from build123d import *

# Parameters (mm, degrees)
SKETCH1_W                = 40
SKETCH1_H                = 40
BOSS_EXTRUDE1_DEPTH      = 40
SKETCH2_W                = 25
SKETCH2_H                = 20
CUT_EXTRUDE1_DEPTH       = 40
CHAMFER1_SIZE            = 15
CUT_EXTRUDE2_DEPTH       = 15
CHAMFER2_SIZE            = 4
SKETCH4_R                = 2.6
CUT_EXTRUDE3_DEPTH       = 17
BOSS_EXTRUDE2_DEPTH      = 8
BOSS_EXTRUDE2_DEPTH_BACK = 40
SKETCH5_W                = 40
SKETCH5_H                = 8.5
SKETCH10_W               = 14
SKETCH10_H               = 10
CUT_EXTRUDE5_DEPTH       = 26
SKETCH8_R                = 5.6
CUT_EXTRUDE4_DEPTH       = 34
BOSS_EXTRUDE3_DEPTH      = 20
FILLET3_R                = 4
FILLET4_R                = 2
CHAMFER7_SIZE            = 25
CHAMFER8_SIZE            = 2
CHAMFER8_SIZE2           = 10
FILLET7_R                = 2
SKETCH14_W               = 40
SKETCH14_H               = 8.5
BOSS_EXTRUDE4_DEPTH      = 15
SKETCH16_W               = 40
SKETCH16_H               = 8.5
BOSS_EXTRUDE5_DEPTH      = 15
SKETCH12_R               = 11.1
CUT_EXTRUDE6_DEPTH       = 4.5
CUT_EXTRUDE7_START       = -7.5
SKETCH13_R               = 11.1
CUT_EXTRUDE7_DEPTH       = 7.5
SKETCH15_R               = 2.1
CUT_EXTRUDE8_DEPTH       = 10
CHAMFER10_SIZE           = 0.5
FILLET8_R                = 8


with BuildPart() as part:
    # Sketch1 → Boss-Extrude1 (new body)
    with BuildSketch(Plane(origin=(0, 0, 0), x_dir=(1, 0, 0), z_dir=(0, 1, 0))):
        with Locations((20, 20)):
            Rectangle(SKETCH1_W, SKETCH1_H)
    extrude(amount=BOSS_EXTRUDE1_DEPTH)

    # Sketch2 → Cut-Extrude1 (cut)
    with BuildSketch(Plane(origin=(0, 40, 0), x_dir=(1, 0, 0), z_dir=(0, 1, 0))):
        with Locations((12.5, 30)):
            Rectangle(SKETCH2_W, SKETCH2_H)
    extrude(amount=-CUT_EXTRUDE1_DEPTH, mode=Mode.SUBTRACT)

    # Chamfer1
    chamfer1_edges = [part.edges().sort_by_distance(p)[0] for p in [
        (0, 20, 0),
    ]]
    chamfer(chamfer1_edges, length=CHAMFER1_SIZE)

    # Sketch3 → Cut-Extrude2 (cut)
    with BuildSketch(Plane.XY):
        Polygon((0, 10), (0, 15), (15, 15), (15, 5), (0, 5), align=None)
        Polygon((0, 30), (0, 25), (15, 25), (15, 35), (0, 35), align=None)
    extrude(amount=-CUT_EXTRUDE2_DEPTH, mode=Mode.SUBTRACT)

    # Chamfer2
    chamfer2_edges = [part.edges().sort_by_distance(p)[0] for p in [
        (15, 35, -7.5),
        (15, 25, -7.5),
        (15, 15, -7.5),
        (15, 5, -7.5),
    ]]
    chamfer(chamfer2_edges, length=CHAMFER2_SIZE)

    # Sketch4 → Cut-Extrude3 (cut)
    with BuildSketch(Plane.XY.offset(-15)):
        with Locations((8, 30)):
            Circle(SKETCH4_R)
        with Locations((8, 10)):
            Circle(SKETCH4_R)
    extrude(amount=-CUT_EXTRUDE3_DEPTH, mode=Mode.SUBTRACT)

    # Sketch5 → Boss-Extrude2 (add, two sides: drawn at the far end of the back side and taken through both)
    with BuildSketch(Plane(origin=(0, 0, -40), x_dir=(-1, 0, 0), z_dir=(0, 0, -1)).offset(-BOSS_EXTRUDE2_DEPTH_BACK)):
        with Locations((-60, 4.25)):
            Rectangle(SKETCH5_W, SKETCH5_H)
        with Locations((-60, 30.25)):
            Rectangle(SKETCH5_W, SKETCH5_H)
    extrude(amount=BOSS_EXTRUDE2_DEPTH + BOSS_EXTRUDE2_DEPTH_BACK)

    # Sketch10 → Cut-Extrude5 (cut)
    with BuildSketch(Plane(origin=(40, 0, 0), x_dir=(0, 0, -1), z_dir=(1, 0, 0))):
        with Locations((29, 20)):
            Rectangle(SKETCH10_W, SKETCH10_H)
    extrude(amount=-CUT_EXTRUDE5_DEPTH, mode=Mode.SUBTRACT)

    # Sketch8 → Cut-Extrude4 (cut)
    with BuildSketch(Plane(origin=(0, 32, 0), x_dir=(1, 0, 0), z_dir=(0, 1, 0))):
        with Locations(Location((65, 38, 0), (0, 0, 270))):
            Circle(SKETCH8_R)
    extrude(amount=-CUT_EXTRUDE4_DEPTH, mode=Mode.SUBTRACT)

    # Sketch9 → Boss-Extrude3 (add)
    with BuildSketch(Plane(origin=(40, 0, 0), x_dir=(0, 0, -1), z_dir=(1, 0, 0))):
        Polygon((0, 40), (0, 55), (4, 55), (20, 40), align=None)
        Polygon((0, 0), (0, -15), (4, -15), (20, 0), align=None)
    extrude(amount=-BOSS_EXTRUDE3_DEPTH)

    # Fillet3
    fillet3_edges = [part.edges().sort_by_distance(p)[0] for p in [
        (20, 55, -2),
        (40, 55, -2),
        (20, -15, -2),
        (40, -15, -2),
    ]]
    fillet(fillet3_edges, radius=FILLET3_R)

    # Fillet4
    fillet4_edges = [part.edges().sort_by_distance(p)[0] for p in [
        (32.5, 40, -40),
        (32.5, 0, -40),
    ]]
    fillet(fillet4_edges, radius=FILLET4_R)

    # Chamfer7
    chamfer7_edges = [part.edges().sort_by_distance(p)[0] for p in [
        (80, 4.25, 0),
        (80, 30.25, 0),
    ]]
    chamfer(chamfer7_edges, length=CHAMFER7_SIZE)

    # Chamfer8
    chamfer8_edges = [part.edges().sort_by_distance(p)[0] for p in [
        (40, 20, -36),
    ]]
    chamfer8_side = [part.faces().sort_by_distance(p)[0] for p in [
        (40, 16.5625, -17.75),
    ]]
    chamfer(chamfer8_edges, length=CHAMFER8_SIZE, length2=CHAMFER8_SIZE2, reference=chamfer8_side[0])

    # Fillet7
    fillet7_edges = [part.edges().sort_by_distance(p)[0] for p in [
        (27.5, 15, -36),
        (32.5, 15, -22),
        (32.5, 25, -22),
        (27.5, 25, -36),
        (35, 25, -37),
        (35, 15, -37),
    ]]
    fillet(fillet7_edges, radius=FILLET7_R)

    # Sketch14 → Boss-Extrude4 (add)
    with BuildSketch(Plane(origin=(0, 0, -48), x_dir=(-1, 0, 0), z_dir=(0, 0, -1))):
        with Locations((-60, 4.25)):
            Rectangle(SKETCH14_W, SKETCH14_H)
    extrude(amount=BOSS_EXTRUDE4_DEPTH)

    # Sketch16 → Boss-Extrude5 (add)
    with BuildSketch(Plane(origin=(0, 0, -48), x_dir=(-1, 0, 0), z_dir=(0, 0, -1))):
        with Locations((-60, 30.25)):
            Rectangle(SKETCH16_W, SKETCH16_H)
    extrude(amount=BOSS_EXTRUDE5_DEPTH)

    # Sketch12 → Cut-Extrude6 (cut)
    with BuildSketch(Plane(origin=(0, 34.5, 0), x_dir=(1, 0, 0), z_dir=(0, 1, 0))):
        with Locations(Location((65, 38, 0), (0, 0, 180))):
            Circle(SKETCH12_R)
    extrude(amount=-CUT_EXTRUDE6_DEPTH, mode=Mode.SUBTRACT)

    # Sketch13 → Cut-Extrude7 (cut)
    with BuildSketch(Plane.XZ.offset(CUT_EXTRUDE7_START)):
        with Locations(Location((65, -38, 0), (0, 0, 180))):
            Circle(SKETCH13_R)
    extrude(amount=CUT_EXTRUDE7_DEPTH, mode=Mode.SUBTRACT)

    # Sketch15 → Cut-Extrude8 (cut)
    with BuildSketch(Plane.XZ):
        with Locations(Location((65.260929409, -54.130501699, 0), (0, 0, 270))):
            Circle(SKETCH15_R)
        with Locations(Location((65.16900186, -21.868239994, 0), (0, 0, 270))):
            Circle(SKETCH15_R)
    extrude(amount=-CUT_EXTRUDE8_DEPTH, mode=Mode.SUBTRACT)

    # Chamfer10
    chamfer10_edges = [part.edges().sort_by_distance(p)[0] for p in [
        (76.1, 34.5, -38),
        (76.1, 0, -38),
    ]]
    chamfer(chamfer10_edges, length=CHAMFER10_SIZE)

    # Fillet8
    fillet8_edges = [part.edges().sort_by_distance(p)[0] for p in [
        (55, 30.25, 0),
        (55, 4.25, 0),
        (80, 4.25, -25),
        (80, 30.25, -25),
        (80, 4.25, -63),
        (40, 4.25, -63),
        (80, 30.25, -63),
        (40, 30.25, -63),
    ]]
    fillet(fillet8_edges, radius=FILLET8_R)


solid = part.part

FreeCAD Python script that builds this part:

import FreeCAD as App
import Part
import Sketcher


def edges_at(feature, points):
    """Names of the edges that pass closest to the given points."""
    edges = feature.Shape.Edges
    near = lambda p: min(range(len(edges)), key=lambda i: edges[i].distToShape(Part.Vertex(*p))[0])
    return sorted({f"Edge{near(p) + 1}" for p in points})

doc = App.newDocument("Part")
body = doc.addObject("PartDesign::Body", "Body")

# Sketch on XZ plane
sketch1 = body.newObject("Sketcher::SketchObject", "Sketch")
sketch1.AttachmentSupport = (doc.getObject("XZ_Plane"), [""])
sketch1.MapMode = "FlatFace"
sketch1.addGeometry([
    Part.LineSegment(App.Vector(0, -40, 0), App.Vector(0, 0, 0)),
    Part.LineSegment(App.Vector(0, 0, 0), App.Vector(40, 0, 0)),
    Part.LineSegment(App.Vector(40, 0, 0), App.Vector(40, -40, 0)),
    Part.LineSegment(App.Vector(40, -40, 0), App.Vector(0, -40, 0)),
], False)
sketch1.addConstraint([
    Sketcher.Constraint("Coincident", 0, 2, 1, 1),
    Sketcher.Constraint("Coincident", 1, 2, 2, 1),
    Sketcher.Constraint("Coincident", 2, 2, 3, 1),
    Sketcher.Constraint("Coincident", 3, 2, 0, 1),
    Sketcher.Constraint("Vertical", 0),
    Sketcher.Constraint("Horizontal", 1),
    Sketcher.Constraint("Vertical", 2),
    Sketcher.Constraint("Horizontal", 3),
    Sketcher.Constraint("Coincident", 0, 2, -1, 1),
    Sketcher.Constraint("Equal", 3, 0),
    Sketcher.Constraint("DistanceX", 1, 1, 1, 2, 40.0),
])
pad1 = body.newObject("PartDesign::Pad", "Pad")
pad1.Profile = sketch1
pad1.Length = 40
pad1.Reversed = True

# Sketch on XZ plane
sketch2 = body.newObject("Sketcher::SketchObject", "Sketch001")
sketch2.AttachmentSupport = (doc.getObject("XZ_Plane"), [""])
sketch2.MapMode = "FlatFace"
sketch2.AttachmentOffset = App.Placement(App.Vector(0, 0, -40), App.Rotation())
sketch2.addGeometry([
    Part.LineSegment(App.Vector(0, -40, 0), App.Vector(0, -20, 0)),
    Part.LineSegment(App.Vector(0, -20, 0), App.Vector(25, -20, 0)),
    Part.LineSegment(App.Vector(25, -20, 0), App.Vector(25, -40, 0)),
    Part.LineSegment(App.Vector(25, -40, 0), App.Vector(0, -40, 0)),
], False)
sketch2.addConstraint([
    Sketcher.Constraint("Coincident", 0, 2, 1, 1),
    Sketcher.Constraint("Coincident", 1, 2, 2, 1),
    Sketcher.Constraint("Coincident", 2, 2, 3, 1),
    Sketcher.Constraint("Coincident", 3, 2, 0, 1),
    Sketcher.Constraint("Vertical", 0),
    Sketcher.Constraint("Horizontal", 1),
    Sketcher.Constraint("Vertical", 2),
    Sketcher.Constraint("Horizontal", 3),
    Sketcher.Constraint("PointOnObject", 0, 2, -2),
    Sketcher.Constraint("DistanceX", 1, 1, 1, 2, 25.0),
    Sketcher.Constraint("DistanceY", 0, 1, 0, 2, 20.0),
    Sketcher.Constraint("DistanceY", 0, 2, -1, 1, 20.0),
])
pocket1 = body.newObject("PartDesign::Pocket", "Pocket")
pocket1.Profile = sketch2
pocket1.Length = 40
pocket1.Reversed = True
doc.recompute()

chamfer = body.newObject("PartDesign::Chamfer", "Chamfer")
chamfer.Base = (pocket1, edges_at(pocket1, [(0, 20, 0)]))
chamfer.Size = 15

# Sketch on XY plane
sketch3 = body.newObject("Sketcher::SketchObject", "Sketch002")
sketch3.AttachmentSupport = (doc.getObject("XY_Plane"), [""])
sketch3.MapMode = "FlatFace"
sketch3.addGeometry([
    Part.LineSegment(App.Vector(0, 15, 0), App.Vector(0, 5, 0)),  # 0
    Part.LineSegment(App.Vector(0, 5, 0), App.Vector(15, 5, 0)),  # 1
    Part.LineSegment(App.Vector(15, 5, 0), App.Vector(15, 15, 0)),  # 2
    Part.LineSegment(App.Vector(15, 15, 0), App.Vector(0, 15, 0)),  # 3
    Part.LineSegment(App.Vector(0, 25, 0), App.Vector(15, 25, 0)),  # 4
    Part.LineSegment(App.Vector(15, 25, 0), App.Vector(15, 35, 0)),  # 5
    Part.LineSegment(App.Vector(15, 35, 0), App.Vector(0, 35, 0)),  # 6
    Part.LineSegment(App.Vector(0, 35, 0), App.Vector(0, 25, 0)),  # 7
], False)
sketch3.addConstraint([
    Sketcher.Constraint("Coincident", 0, 2, 1, 1),
    Sketcher.Constraint("Coincident", 1, 2, 2, 1),
    Sketcher.Constraint("Coincident", 2, 2, 3, 1),
    Sketcher.Constraint("Coincident", 3, 2, 0, 1),
    Sketcher.Constraint("Coincident", 4, 2, 5, 1),
    Sketcher.Constraint("Coincident", 5, 2, 6, 1),
    Sketcher.Constraint("Coincident", 6, 2, 7, 1),
    Sketcher.Constraint("Coincident", 7, 2, 4, 1),
    Sketcher.Constraint("Vertical", 0),
    Sketcher.Constraint("Horizontal", 1),
    Sketcher.Constraint("Vertical", 2),
    Sketcher.Constraint("Horizontal", 3),
    Sketcher.Constraint("Horizontal", 4),
    Sketcher.Constraint("Vertical", 5),
    Sketcher.Constraint("Horizontal", 6),
    Sketcher.Constraint("Vertical", 7),
    Sketcher.Constraint("PointOnObject", 0, 2, -2),
    Sketcher.Constraint("PointOnObject", 6, 2, -2),
    Sketcher.Constraint("Vertical", 2, 2, 4, 2),
    Sketcher.Constraint("Equal", 2, 5),
    Sketcher.Constraint("DistanceX", 1, 1, 1, 2, 15.0),
    Sketcher.Constraint("DistanceY", 0, 2, 0, 1, 10.0),
    Sketcher.Constraint("DistanceY", -1, 1, 0, 2, 5.0),
    Sketcher.Constraint("DistanceY", -1, 1, 4, 2, 25.0),
])
pocket2 = body.newObject("PartDesign::Pocket", "Pocket001")
pocket2.Profile = sketch3
pocket2.Length = 15
doc.recompute()

chamfer2 = body.newObject("PartDesign::Chamfer", "Chamfer001")
chamfer2.Base = (pocket2, edges_at(pocket2, [
    (15, 35, -7.5),
    (15, 25, -7.5),
    (15, 15, -7.5),
    (15, 5, -7.5),
]))
chamfer2.Size = 4

# Sketch on XY plane
sketch4 = body.newObject("Sketcher::SketchObject", "Sketch003")
sketch4.AttachmentSupport = (doc.getObject("XY_Plane"), [""])
sketch4.MapMode = "FlatFace"
sketch4.AttachmentOffset = App.Placement(App.Vector(0, 0, -15), App.Rotation())
sketch4.addGeometry([
    Part.Circle(App.Vector(8, 30, 0), App.Vector(0, 0, 1), 2.6),
    Part.Circle(App.Vector(8, 10, 0), App.Vector(0, 0, 1), 2.6),
], False)
sketch4.addConstraint([
    Sketcher.Constraint("Equal", 0, 1),
    Sketcher.Constraint("Vertical", 0, 3, 1, 3),
    Sketcher.Constraint("Diameter", 0, 5.2),
    Sketcher.Constraint("DistanceX", -1, 1, 0, 3, 8.0),
    Sketcher.Constraint("DistanceY", -1, 1, 0, 3, 30.0),
    Sketcher.Constraint("DistanceY", -1, 1, 1, 3, 10.0),
])
pocket3 = body.newObject("PartDesign::Pocket", "Pocket002")
pocket3.Profile = sketch4
pocket3.Length = 17

# Sketch on XY plane
sketch5 = body.newObject("Sketcher::SketchObject", "Sketch004")
sketch5.AttachmentSupport = (doc.getObject("XY_Plane"), [""])
sketch5.MapMode = "FlatFace"
sketch5.AttachmentOffset = App.Placement(App.Vector(0, 0, -40), App.Rotation())
sketch5.addGeometry([
    Part.LineSegment(App.Vector(80, 8.5, 0), App.Vector(80, 0, 0)),  # 0
    Part.LineSegment(App.Vector(80, 0, 0), App.Vector(40, 0, 0)),  # 1
    Part.LineSegment(App.Vector(40, 0, 0), App.Vector(40, 8.5, 0)),  # 2
    Part.LineSegment(App.Vector(40, 8.5, 0), App.Vector(80, 8.5, 0)),  # 3
    Part.LineSegment(App.Vector(80, 34.5, 0), App.Vector(80, 26, 0)),  # 4
    Part.LineSegment(App.Vector(80, 26, 0), App.Vector(40, 26, 0)),  # 5
    Part.LineSegment(App.Vector(40, 26, 0), App.Vector(40, 34.5, 0)),  # 6
    Part.LineSegment(App.Vector(40, 34.5, 0), App.Vector(80, 34.5, 0)),  # 7
], False)
sketch5.addConstraint([
    Sketcher.Constraint("Coincident", 0, 2, 1, 1),
    Sketcher.Constraint("Coincident", 1, 2, 2, 1),
    Sketcher.Constraint("Coincident", 2, 2, 3, 1),
    Sketcher.Constraint("Coincident", 3, 2, 0, 1),
    Sketcher.Constraint("Coincident", 4, 2, 5, 1),
    Sketcher.Constraint("Coincident", 5, 2, 6, 1),
    Sketcher.Constraint("Coincident", 6, 2, 7, 1),
    Sketcher.Constraint("Coincident", 7, 2, 4, 1),
    Sketcher.Constraint("Vertical", 0),
    Sketcher.Constraint("Horizontal", 1),
    Sketcher.Constraint("Vertical", 2),
    Sketcher.Constraint("Horizontal", 3),
    Sketcher.Constraint("Vertical", 4),
    Sketcher.Constraint("Horizontal", 5),
    Sketcher.Constraint("Vertical", 6),
    Sketcher.Constraint("Horizontal", 7),
    Sketcher.Constraint("PointOnObject", 0, 2, -1),
    Sketcher.Constraint("Vertical", 3, 2, 4, 2),
    Sketcher.Constraint("Vertical", 2, 2, 5, 2),
    Sketcher.Constraint("Equal", 2, 4),
    Sketcher.Constraint("DistanceX", 1, 2, 1, 1, 40.0),
    Sketcher.Constraint("DistanceY", 0, 2, 0, 1, 8.5),
    Sketcher.Constraint("DistanceX", -1, 1, 0, 2, 80.0),
    Sketcher.Constraint("DistanceY", -1, 1, 4, 2, 26.0),
])
pad2 = body.newObject("PartDesign::Pad", "Pad001")
pad2.Profile = sketch5
pad2.Type = "TwoLengths"
pad2.Length = 8
pad2.Length2 = 40
pad2.Reversed = True

# Sketch on YZ plane
sketch6 = body.newObject("Sketcher::SketchObject", "Sketch005")
sketch6.AttachmentSupport = (doc.getObject("YZ_Plane"), [""])
sketch6.MapMode = "FlatFace"
sketch6.AttachmentOffset = App.Placement(App.Vector(0, 0, 40), App.Rotation())
sketch6.addGeometry([
    Part.LineSegment(App.Vector(25, -22, 0), App.Vector(15, -22, 0)),
    Part.LineSegment(App.Vector(15, -22, 0), App.Vector(15, -36, 0)),
    Part.LineSegment(App.Vector(15, -36, 0), App.Vector(25, -36, 0)),
    Part.LineSegment(App.Vector(25, -36, 0), App.Vector(25, -22, 0)),
], False)
sketch6.addConstraint([
    Sketcher.Constraint("Coincident", 0, 2, 1, 1),
    Sketcher.Constraint("Coincident", 1, 2, 2, 1),
    Sketcher.Constraint("Coincident", 2, 2, 3, 1),
    Sketcher.Constraint("Coincident", 3, 2, 0, 1),
    Sketcher.Constraint("Horizontal", 0),
    Sketcher.Constraint("Vertical", 1),
    Sketcher.Constraint("Horizontal", 2),
    Sketcher.Constraint("Vertical", 3),
    Sketcher.Constraint("DistanceX", 0, 2, 0, 1, 10.0),
    Sketcher.Constraint("DistanceY", 1, 2, 1, 1, 14.0),
    Sketcher.Constraint("DistanceX", -1, 1, 0, 2, 15.0),
    Sketcher.Constraint("DistanceY", 0, 2, -1, 1, 22.0),
])
pocket4 = body.newObject("PartDesign::Pocket", "Pocket003")
pocket4.Profile = sketch6
pocket4.Length = 26

# Sketch on XZ plane
sketch7 = body.newObject("Sketcher::SketchObject", "Sketch006")
sketch7.AttachmentSupport = (doc.getObject("XZ_Plane"), [""])
sketch7.MapMode = "FlatFace"
sketch7.AttachmentOffset = App.Placement(App.Vector(0, 0, -32), App.Rotation())
sketch7.addGeometry(Part.Circle(App.Vector(65, -38, 0), App.Vector(0, 0, 1), 5.6), False)
sketch7.addConstraint([
    Sketcher.Constraint("Diameter", 0, 11.2),
    Sketcher.Constraint("DistanceX", -1, 1, 0, 3, 65.0),
    Sketcher.Constraint("DistanceY", 0, 3, -1, 1, 38.0),
])
pocket5 = body.newObject("PartDesign::Pocket", "Pocket004")
pocket5.Profile = sketch7
pocket5.Length = 34
pocket5.Reversed = True

# Sketch on YZ plane
sketch8 = body.newObject("Sketcher::SketchObject", "Sketch007")
sketch8.AttachmentSupport = (doc.getObject("YZ_Plane"), [""])
sketch8.MapMode = "FlatFace"
sketch8.AttachmentOffset = App.Placement(App.Vector(0, 0, 40), App.Rotation())
sketch8.addGeometry([
    Part.LineSegment(App.Vector(55, 0, 0), App.Vector(40, 0, 0)),  # 0
    Part.LineSegment(App.Vector(40, 0, 0), App.Vector(40, -20, 0)),  # 1
    Part.LineSegment(App.Vector(40, -20, 0), App.Vector(55, -4, 0)),  # 2
    Part.LineSegment(App.Vector(55, -4, 0), App.Vector(55, 0, 0)),  # 3
    Part.LineSegment(App.Vector(0, 0, 0), App.Vector(-15, 0, 0)),  # 4
    Part.LineSegment(App.Vector(-15, 0, 0), App.Vector(-15, -4, 0)),  # 5
    Part.LineSegment(App.Vector(-15, -4, 0), App.Vector(0, -20, 0)),  # 6
    Part.LineSegment(App.Vector(0, -20, 0), App.Vector(0, 0, 0)),  # 7
], False)
sketch8.addConstraint([
    Sketcher.Constraint("Coincident", 0, 2, 1, 1),
    Sketcher.Constraint("Coincident", 1, 2, 2, 1),
    Sketcher.Constraint("Coincident", 2, 2, 3, 1),
    Sketcher.Constraint("Coincident", 3, 2, 0, 1),
    Sketcher.Constraint("Coincident", 4, 2, 5, 1),
    Sketcher.Constraint("Coincident", 5, 2, 6, 1),
    Sketcher.Constraint("Coincident", 6, 2, 7, 1),
    Sketcher.Constraint("Coincident", 7, 2, 4, 1),
    Sketcher.Constraint("Horizontal", 0),
    Sketcher.Constraint("Vertical", 1),
    Sketcher.Constraint("Vertical", 3),
    Sketcher.Constraint("Horizontal", 4),
    Sketcher.Constraint("Vertical", 5),
    Sketcher.Constraint("Vertical", 7),
    Sketcher.Constraint("Coincident", 7, 2, -1, 1),
    Sketcher.Constraint("PointOnObject", 0, 2, -1),
    Sketcher.Constraint("Horizontal", 2, 2, 5, 2),
    Sketcher.Constraint("Horizontal", 1, 2, 6, 2),
    Sketcher.Constraint("Equal", 0, 4),
    Sketcher.Constraint("DistanceX", 0, 2, 0, 1, 15.0),
    Sketcher.Constraint("DistanceY", 1, 2, 1, 1, 20.0),
    Sketcher.Constraint("DistanceY", 3, 1, 3, 2, 4.0),
    Sketcher.Constraint("DistanceX", -1, 1, 0, 2, 40.0),
])
pad3 = body.newObject("PartDesign::Pad", "Pad002")
pad3.Profile = sketch8
pad3.Length = 20
pad3.Reversed = True
doc.recompute()

fillet = body.newObject("PartDesign::Fillet", "Fillet")
fillet.Base = (pad3, edges_at(pad3, [
    (20, 55, -2),
    (40, 55, -2),
    (20, -15, -2),
    (40, -15, -2),
]))
fillet.Radius = 4
doc.recompute()

fillet2 = body.newObject("PartDesign::Fillet", "Fillet001")
fillet2.Base = (fillet, edges_at(fillet, [(32.5, 40, -40), (32.5, 0, -40)]))
fillet2.Radius = 2
doc.recompute()

chamfer3 = body.newObject("PartDesign::Chamfer", "Chamfer002")
chamfer3.Base = (fillet2, edges_at(fillet2, [(80, 4.25, 0), (80, 30.25, 0)]))
chamfer3.Size = 25
doc.recompute()

chamfer4 = body.newObject("PartDesign::Chamfer", "Chamfer003")
chamfer4.Base = (chamfer3, edges_at(chamfer3, [(40, 20, -36)]))
chamfer4.ChamferType = "Two distances"
chamfer4.Size = 2
chamfer4.Size2 = 10
doc.recompute()

fillet3 = body.newObject("PartDesign::Fillet", "Fillet002")
fillet3.Base = (chamfer4, edges_at(chamfer4, [
    (27.5, 15, -36),
    (32.5, 15, -22),
    (32.5, 25, -22),
    (27.5, 25, -36),
    (35, 25, -37),
    (35, 15, -37),
]))
fillet3.Radius = 2

# Sketch on XY plane
sketch9 = body.newObject("Sketcher::SketchObject", "Sketch008")
sketch9.AttachmentSupport = (doc.getObject("XY_Plane"), [""])
sketch9.MapMode = "FlatFace"
sketch9.AttachmentOffset = App.Placement(App.Vector(0, 0, -48), App.Rotation())
sketch9.addGeometry([
    Part.LineSegment(App.Vector(80, 8.5, 0), App.Vector(80, 0, 0)),
    Part.LineSegment(App.Vector(80, 0, 0), App.Vector(40, 0, 0)),
    Part.LineSegment(App.Vector(40, 0, 0), App.Vector(40, 8.5, 0)),
    Part.LineSegment(App.Vector(40, 8.5, 0), App.Vector(80, 8.5, 0)),
], False)
sketch9.addConstraint([
    Sketcher.Constraint("Coincident", 0, 2, 1, 1),
    Sketcher.Constraint("Coincident", 1, 2, 2, 1),
    Sketcher.Constraint("Coincident", 2, 2, 3, 1),
    Sketcher.Constraint("Coincident", 3, 2, 0, 1),
    Sketcher.Constraint("Vertical", 0),
    Sketcher.Constraint("Horizontal", 1),
    Sketcher.Constraint("Vertical", 2),
    Sketcher.Constraint("Horizontal", 3),
    Sketcher.Constraint("PointOnObject", 0, 2, -1),
    Sketcher.Constraint("DistanceX", 1, 2, 1, 1, 40.0),
    Sketcher.Constraint("DistanceY", 0, 2, 0, 1, 8.5),
    Sketcher.Constraint("DistanceX", -1, 1, 0, 2, 80.0),
])
pad4 = body.newObject("PartDesign::Pad", "Pad003")
pad4.Profile = sketch9
pad4.Length = 15
pad4.Reversed = True

# Sketch on XY plane
sketch10 = body.newObject("Sketcher::SketchObject", "Sketch009")
sketch10.AttachmentSupport = (doc.getObject("XY_Plane"), [""])
sketch10.MapMode = "FlatFace"
sketch10.AttachmentOffset = App.Placement(App.Vector(0, 0, -48), App.Rotation())
sketch10.addGeometry([
    Part.LineSegment(App.Vector(80, 34.5, 0), App.Vector(80, 26, 0)),
    Part.LineSegment(App.Vector(80, 26, 0), App.Vector(40, 26, 0)),
    Part.LineSegment(App.Vector(40, 26, 0), App.Vector(40, 34.5, 0)),
    Part.LineSegment(App.Vector(40, 34.5, 0), App.Vector(80, 34.5, 0)),
], False)
sketch10.addConstraint([
    Sketcher.Constraint("Coincident", 0, 2, 1, 1),
    Sketcher.Constraint("Coincident", 1, 2, 2, 1),
    Sketcher.Constraint("Coincident", 2, 2, 3, 1),
    Sketcher.Constraint("Coincident", 3, 2, 0, 1),
    Sketcher.Constraint("Vertical", 0),
    Sketcher.Constraint("Horizontal", 1),
    Sketcher.Constraint("Vertical", 2),
    Sketcher.Constraint("Horizontal", 3),
    Sketcher.Constraint("DistanceX", 1, 2, 1, 1, 40.0),
    Sketcher.Constraint("DistanceY", 0, 2, 0, 1, 8.5),
    Sketcher.Constraint("DistanceX", -1, 1, 0, 2, 80.0),
    Sketcher.Constraint("DistanceY", -1, 1, 0, 2, 26.0),
])
pad5 = body.newObject("PartDesign::Pad", "Pad004")
pad5.Profile = sketch10
pad5.Length = 15
pad5.Reversed = True

# Sketch on XZ plane
sketch11 = body.newObject("Sketcher::SketchObject", "Sketch010")
sketch11.AttachmentSupport = (doc.getObject("XZ_Plane"), [""])
sketch11.MapMode = "FlatFace"
sketch11.AttachmentOffset = App.Placement(App.Vector(0, 0, -34.5), App.Rotation())
sketch11.addGeometry(Part.Circle(App.Vector(65, -38, 0), App.Vector(0, 0, 1), 11.1), False)
sketch11.addConstraint([
    Sketcher.Constraint("Diameter", 0, 22.2),
    Sketcher.Constraint("DistanceX", -1, 1, 0, 3, 65.0),
    Sketcher.Constraint("DistanceY", 0, 3, -1, 1, 38.0),
])
pocket6 = body.newObject("PartDesign::Pocket", "Pocket005")
pocket6.Profile = sketch11
pocket6.Length = 4.5
pocket6.Reversed = True

# Sketch on XZ plane
sketch12 = body.newObject("Sketcher::SketchObject", "Sketch011")
sketch12.AttachmentSupport = (doc.getObject("XZ_Plane"), [""])
sketch12.MapMode = "FlatFace"
sketch12.AttachmentOffset = App.Placement(App.Vector(0, 0, -7.5), App.Rotation())
sketch12.addGeometry(Part.Circle(App.Vector(65, -38, 0), App.Vector(0, 0, 1), 11.1), False)
sketch12.addConstraint([
    Sketcher.Constraint("Diameter", 0, 22.2),
    Sketcher.Constraint("DistanceX", -1, 1, 0, 3, 65.0),
    Sketcher.Constraint("DistanceY", 0, 3, -1, 1, 38.0),
])
pocket7 = body.newObject("PartDesign::Pocket", "Pocket006")
pocket7.Profile = sketch12
pocket7.Length = 7.5
pocket7.Reversed = True

# Sketch on XZ plane
sketch13 = body.newObject("Sketcher::SketchObject", "Sketch012")
sketch13.AttachmentSupport = (doc.getObject("XZ_Plane"), [""])
sketch13.MapMode = "FlatFace"
sketch13.addGeometry([
    Part.Circle(App.Vector(65.260929, -54.130502, 0), App.Vector(0, 0, 1), 2.1),
    Part.Circle(App.Vector(65.169002, -21.86824, 0), App.Vector(0, 0, 1), 2.1),
], False)
sketch13.addConstraint([
    Sketcher.Constraint("Equal", 0, 1),
    Sketcher.Constraint("Diameter", 0, 4.2),
    Sketcher.Constraint("DistanceX", -1, 1, 1, 3, 65.169002),
    Sketcher.Constraint("DistanceY", 0, 3, -1, 1, 54.130502),
    Sketcher.Constraint("DistanceX", -1, 1, 0, 3, 65.260929),
    Sketcher.Constraint("DistanceY", 1, 3, -1, 1, 21.86824),
])
pocket8 = body.newObject("PartDesign::Pocket", "Pocket007")
pocket8.Profile = sketch13
pocket8.Length = 10
doc.recompute()

chamfer5 = body.newObject("PartDesign::Chamfer", "Chamfer004")
chamfer5.Base = (pocket8, edges_at(pocket8, [(76.1, 34.5, -38), (76.1, 0, -38)]))
chamfer5.Size = 0.5
doc.recompute()

fillet4 = body.newObject("PartDesign::Fillet", "Fillet003")
fillet4.Base = (chamfer5, edges_at(chamfer5, [
    (55, 30.25, 0),
    (55, 4.25, 0),
    (80, 4.25, -25),
    (80, 30.25, -25),
    (80, 4.25, -63),
    (40, 4.25, -63),
    (80, 30.25, -63),
    (40, 30.25, -63),
]))
fillet4.Radius = 8

doc.recompute()
